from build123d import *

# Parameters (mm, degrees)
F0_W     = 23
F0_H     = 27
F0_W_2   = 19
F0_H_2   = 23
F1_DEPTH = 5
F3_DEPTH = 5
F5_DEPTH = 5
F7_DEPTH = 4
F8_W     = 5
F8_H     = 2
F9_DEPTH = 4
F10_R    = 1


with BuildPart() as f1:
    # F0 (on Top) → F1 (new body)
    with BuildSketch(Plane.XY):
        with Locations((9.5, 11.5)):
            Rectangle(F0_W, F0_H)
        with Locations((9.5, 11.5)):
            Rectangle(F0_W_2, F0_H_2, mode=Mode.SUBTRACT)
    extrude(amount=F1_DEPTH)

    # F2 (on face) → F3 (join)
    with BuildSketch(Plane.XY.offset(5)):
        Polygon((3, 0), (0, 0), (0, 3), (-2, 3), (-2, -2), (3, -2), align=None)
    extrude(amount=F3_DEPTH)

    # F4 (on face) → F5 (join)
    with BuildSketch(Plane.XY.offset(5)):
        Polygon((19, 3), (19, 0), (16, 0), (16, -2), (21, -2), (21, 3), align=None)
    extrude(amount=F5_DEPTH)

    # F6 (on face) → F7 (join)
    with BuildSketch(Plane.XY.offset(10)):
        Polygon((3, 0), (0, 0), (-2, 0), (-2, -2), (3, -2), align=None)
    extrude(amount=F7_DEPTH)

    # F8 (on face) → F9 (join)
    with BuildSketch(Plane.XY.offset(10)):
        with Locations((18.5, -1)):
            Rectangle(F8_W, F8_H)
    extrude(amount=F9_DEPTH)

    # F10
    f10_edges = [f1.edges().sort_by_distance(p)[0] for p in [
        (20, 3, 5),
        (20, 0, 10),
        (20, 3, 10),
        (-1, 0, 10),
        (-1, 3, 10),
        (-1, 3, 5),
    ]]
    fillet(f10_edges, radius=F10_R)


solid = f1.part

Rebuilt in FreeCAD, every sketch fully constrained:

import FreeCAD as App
import Part
import Sketcher
from FreeCAD import Vector


def edges_at(feature, points):
    """Names of the edges that pass closest to the given points."""
    edges = feature.Shape.Edges
    near = lambda p: min(range(len(edges)), key=lambda i: edges[i].distToShape(Part.Vertex(*p))[0])
    return sorted({f"Edge{near(p) + 1}" for p in points})


def add_polygon(sketch, points):
    """Adds a closed chain of lines whose ends are joined by coincident constraints."""
    first, n = sketch.GeometryCount, len(points)
    for a, b in zip(points, points[1:] + points[:1]):
        sketch.addGeometry(Part.LineSegment(App.Vector(*a, 0), App.Vector(*b, 0)), False)
    for i in range(n):
        sketch.addConstraint(Sketcher.Constraint("Coincident", first + i, 2, first + (i + 1) % n, 1))

doc = App.newDocument("Part")
body = doc.addObject("PartDesign::Body", "Body")

# Sketch on XY plane
sketch1 = body.newObject("Sketcher::SketchObject", "Sketch")
sketch1.AttachmentSupport = (doc.getObject("XY_Plane"), [""])
sketch1.MapMode = "FlatFace"
add_polygon(sketch1, [(-2, 25), (-2, -2), (21, -2), (21, 25)])  # lines 0-3
add_polygon(sketch1, [(19, 0), (0, 0), (0, 23), (19, 23)])  # lines 4-7
sketch1.addConstraint([
    Sketcher.Constraint("Vertical", 0),
    Sketcher.Constraint("Horizontal", 1),
    Sketcher.Constraint("Vertical", 2),
    Sketcher.Constraint("Horizontal", 3),
    Sketcher.Constraint("Horizontal", 4),
    Sketcher.Constraint("Vertical", 5),
    Sketcher.Constraint("Horizontal", 6),
    Sketcher.Constraint("Vertical", 7),
    Sketcher.Constraint("Coincident", 4, 2, -1, 1),
    Sketcher.Constraint("Equal", 3, 5),
    Sketcher.Constraint("DistanceX", 1, 1, 1, 2, 23.0),
    Sketcher.Constraint("DistanceX", 4, 2, 4, 1, 19.0),
    Sketcher.Constraint("DistanceY", 0, 2, 0, 1, 27.0),
    Sketcher.Constraint("DistanceX", 0, 2, -1, 1, 2.0),
    Sketcher.Constraint("DistanceY", 0, 2, -1, 1, 2.0),
])
pad1 = body.newObject("PartDesign::Pad", "Pad")
pad1.Profile = sketch1
pad1.Length = 5

# Sketch on XY plane
sketch2 = body.newObject("Sketcher::SketchObject", "Sketch001")
sketch2.AttachmentSupport = (doc.getObject("XY_Plane"), [""])
sketch2.MapMode = "FlatFace"
sketch2.AttachmentOffset = App.Placement(Vector(0, 0, 5), App.Rotation())
add_polygon(sketch2, [(3, 0), (0, 0), (0, 3), (-2, 3), (-2, -2), (3, -2)])  # lines 0-5
sketch2.addConstraint([
    Sketcher.Constraint("Horizontal", 0),
    Sketcher.Constraint("Vertical", 1),
    Sketcher.Constraint("Horizontal", 2),
    Sketcher.Constraint("Vertical", 3),
    Sketcher.Constraint("Horizontal", 4),
    Sketcher.Constraint("Vertical", 5),
    Sketcher.Constraint("Coincident", 0, 2, -1, 1),
    Sketcher.Constraint("Equal", 0, 1),
    Sketcher.Constraint("Equal", 4, 3),
    Sketcher.Constraint("DistanceX", 0, 2, 0, 1, 3.0),
    Sketcher.Constraint("DistanceX", 2, 2, 2, 1, 2.0),
])
pad2 = body.newObject("PartDesign::Pad", "Pad001")
pad2.Profile = sketch2
pad2.Length = 5

# Sketch on XY plane
sketch3 = body.newObject("Sketcher::SketchObject", "Sketch002")
sketch3.AttachmentSupport = (doc.getObject("XY_Plane"), [""])
sketch3.MapMode = "FlatFace"
sketch3.AttachmentOffset = App.Placement(Vector(0, 0, 5), App.Rotation())
add_polygon(sketch3, [(19, 3), (19, 0), (16, 0), (16, -2), (21, -2), (21, 3)])  # lines 0-5
sketch3.addConstraint([
    Sketcher.Constraint("Vertical", 0),
    Sketcher.Constraint("Horizontal", 1),
    Sketcher.Constraint("Vertical", 2),
    Sketcher.Constraint("Horizontal", 3),
    Sketcher.Constraint("Vertical", 4),
    Sketcher.Constraint("Horizontal", 5),
    Sketcher.Constraint("PointOnObject", 0, 2, -1),
    Sketcher.Constraint("Equal", 1, 0),
    Sketcher.Constraint("Equal", 5, 2),
    Sketcher.Constraint("DistanceX", 1, 2, 1, 1, 3.0),
    Sketcher.Constraint("DistanceX", 3, 1, 3, 2, 5.0),
    Sketcher.Constraint("DistanceX", -1, 1, 0, 2, 19.0),
])
pad3 = body.newObject("PartDesign::Pad", "Pad002")
pad3.Profile = sketch3
pad3.Length = 5

# Sketch on XY plane
sketch4 = body.newObject("Sketcher::SketchObject", "Sketch003")
sketch4.AttachmentSupport = (doc.getObject("XY_Plane"), [""])
sketch4.MapMode = "FlatFace"
sketch4.AttachmentOffset = App.Placement(Vector(0, 0, 10), App.Rotation())
add_polygon(sketch4, [(3, 0), (-2, 0), (-2, -2), (3, -2)])  # lines 0-3
sketch4.addConstraint([
    Sketcher.Constraint("Horizontal", 0),
    Sketcher.Constraint("Vertical", 1),
    Sketcher.Constraint("Horizontal", 2),
    Sketcher.Constraint("Vertical", 3),
    Sketcher.Constraint("PointOnObject", 0, 2, -1),
    Sketcher.Constraint("DistanceX", 0, 2, 0, 1, 5.0),
    Sketcher.Constraint("DistanceY", 1, 2, 1, 1, 2.0),
    Sketcher.Constraint("DistanceX", 0, 2, -1, 1, 2.0),
])
pad4 = body.newObject("PartDesign::Pad", "Pad003")
pad4.Profile = sketch4
pad4.Length = 4

# Sketch on XY plane
sketch5 = body.newObject("Sketcher::SketchObject", "Sketch004")
sketch5.AttachmentSupport = (doc.getObject("XY_Plane"), [""])
sketch5.MapMode = "FlatFace"
sketch5.AttachmentOffset = App.Placement(Vector(0, 0, 10), App.Rotation())
add_polygon(sketch5, [(16, 0), (16, -2), (21, -2), (21, 0)])  # lines 0-3
sketch5.addConstraint([
    Sketcher.Constraint("Vertical", 0),
    Sketcher.Constraint("Horizontal", 1),
    Sketcher.Constraint("Vertical", 2),
    Sketcher.Constraint("Horizontal", 3),
    Sketcher.Constraint("PointOnObject", 2, 2, -1),
    Sketcher.Constraint("DistanceX", 1, 1, 1, 2, 5.0),
    Sketcher.Constraint("DistanceY", 0, 2, 0, 1, 2.0),
    Sketcher.Constraint("DistanceX", -1, 1, 0, 2, 16.0),
])
pad5 = body.newObject("PartDesign::Pad", "Pad004")
pad5.Profile = sketch5
pad5.Length = 4
doc.recompute()

fillet = body.newObject("PartDesign::Fillet", "Fillet")
fillet.Base = (pad5, edges_at(pad5, [
    (20, 3, 5),
    (20, 0, 10),
    (20, 3, 10),
    (-1, 0, 10),
    (-1, 3, 10),
    (-1, 3, 5),
]))
fillet.Radius = 1

doc.recompute()
